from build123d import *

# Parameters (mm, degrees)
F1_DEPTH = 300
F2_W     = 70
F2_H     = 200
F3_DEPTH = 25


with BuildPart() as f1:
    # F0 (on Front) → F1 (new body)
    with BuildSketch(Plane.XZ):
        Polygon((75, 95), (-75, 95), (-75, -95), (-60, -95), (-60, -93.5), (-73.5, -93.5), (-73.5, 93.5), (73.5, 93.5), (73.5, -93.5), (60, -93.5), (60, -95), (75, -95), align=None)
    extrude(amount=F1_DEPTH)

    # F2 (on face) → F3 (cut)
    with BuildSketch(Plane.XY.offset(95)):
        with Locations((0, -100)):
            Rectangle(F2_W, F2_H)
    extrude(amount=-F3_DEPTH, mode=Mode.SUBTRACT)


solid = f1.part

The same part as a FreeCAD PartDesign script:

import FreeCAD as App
import Part
import Sketcher
from FreeCAD import Vector

doc = App.newDocument("Part")
body = doc.addObject("PartDesign::Body", "Body")

# Sketch on XZ plane
sketch1 = doc.addObject("Sketcher::SketchObject", "Sketch")
body.addObject(sketch1)
sketch1.AttachmentSupport = (doc.XZ_Plane, [""])
sketch1.MapMode = "FlatFace"
sketch1.addGeometry([
    Part.LineSegment(Vector(75, 95, 0), Vector(-75, 95, 0)),  # 0
    Part.LineSegment(Vector(-75, 95, 0), Vector(-75, -95, 0)),  # 1
    Part.LineSegment(Vector(-75, -95, 0), Vector(-60, -95, 0)),  # 2
    Part.LineSegment(Vector(-60, -95, 0), Vector(-60, -93.5, 0)),  # 3
    Part.LineSegment(Vector(-60, -93.5, 0), Vector(-73.5, -93.5, 0)),  # 4
    Part.LineSegment(Vector(-73.5, -93.5, 0), Vector(-73.5, 93.5, 0)),  # 5
    Part.LineSegment(Vector(-73.5, 93.5, 0), Vector(73.5, 93.5, 0)),  # 6
    Part.LineSegment(Vector(73.5, 93.5, 0), Vector(73.5, -93.5, 0)),  # 7
    Part.LineSegment(Vector(73.5, -93.5, 0), Vector(60, -93.5, 0)),  # 8
    Part.LineSegment(Vector(60, -93.5, 0), Vector(60, -95, 0)),  # 9
    Part.LineSegment(Vector(60, -95, 0), Vector(75, -95, 0)),  # 10
    Part.LineSegment(Vector(75, -95, 0), Vector(75, 95, 0)),  # 11
], False)
sketch1.addConstraint([
    Sketcher.Constraint("Coincident", 0, 2, 1, 1),
    Sketcher.Constraint("Coincident", 1, 2, 2, 1),
    Sketcher.Constraint("Coincident", 2, 2, 3, 1),
    Sketcher.Constraint("Coincident", 3, 2, 4, 1),
    Sketcher.Constraint("Coincident", 4, 2, 5, 1),
    Sketcher.Constraint("Coincident", 5, 2, 6, 1),
    Sketcher.Constraint("Coincident", 6, 2, 7, 1),
    Sketcher.Constraint("Coincident", 7, 2, 8, 1),
    Sketcher.Constraint("Coincident", 8, 2, 9, 1),
    Sketcher.Constraint("Coincident", 9, 2, 10, 1),
    Sketcher.Constraint("Coincident", 10, 2, 11, 1),
    Sketcher.Constraint("Coincident", 11, 2, 0, 1),
    Sketcher.Constraint("Horizontal", 0),
    Sketcher.Constraint("Vertical", 1),
    Sketcher.Constraint("Horizontal", 2),
    Sketcher.Constraint("Vertical", 3),
    Sketcher.Constraint("Horizontal", 4),
    Sketcher.Constraint("Vertical", 5),
    Sketcher.Constraint("Horizontal", 6),
    Sketcher.Constraint("Vertical", 7),
    Sketcher.Constraint("Horizontal", 8),
    Sketcher.Constraint("Vertical", 9),
    Sketcher.Constraint("Horizontal", 10),
    Sketcher.Constraint("Vertical", 11),
    Sketcher.Constraint("Symmetric", 4, 2, 6, 2, -1, 1),
    Sketcher.Constraint("Symmetric", 0, 2, 10, 2, -1, 1),
    Sketcher.Constraint("Symmetric", 3, 2, 8, 2, -2),
    Sketcher.Constraint("Horizontal", 2, 2, 9, 2),
    Sketcher.Constraint("DistanceX", 0, 2, 0, 1, 150.0),
    Sketcher.Constraint("DistanceX", 2, 1, 2, 2, 15.0),
    Sketcher.Constraint("DistanceX", 6, 1, 6, 2, 147.0),
    Sketcher.Constraint("DistanceY", 1, 2, 1, 1, 190.0),
    Sketcher.Constraint("DistanceY", 5, 1, 5, 2, 187.0),
])
pad1 = doc.addObject("PartDesign::Pad", "Pad")
body.addObject(pad1)
pad1.Profile = sketch1
pad1.Length = 300

# Sketch on XY plane
sketch2 = doc.addObject("Sketcher::SketchObject", "Sketch001")
body.addObject(sketch2)
sketch2.AttachmentSupport = (doc.XY_Plane, [""])
sketch2.MapMode = "FlatFace"
sketch2.AttachmentOffset = App.Placement(Vector(0, 0, 95), App.Rotation())
sketch2.addGeometry([
    Part.LineSegment(Vector(-35, 0, 0), Vector(-35, -200, 0)),
    Part.LineSegment(Vector(-35, -200, 0), Vector(35, -200, 0)),
    Part.LineSegment(Vector(35, -200, 0), Vector(35, 0, 0)),
    Part.LineSegment(Vector(35, 0, 0), Vector(-35, 0, 0)),
], False)
sketch2.addConstraint([
    Sketcher.Constraint("Coincident", 0, 2, 1, 1),
    Sketcher.Constraint("Coincident", 1, 2, 2, 1),
    Sketcher.Constraint("Coincident", 2, 2, 3, 1),
    Sketcher.Constraint("Coincident", 3, 2, 0, 1),
    Sketcher.Constraint("Vertical", 0),
    Sketcher.Constraint("Horizontal", 1),
    Sketcher.Constraint("Vertical", 2),
    Sketcher.Constraint("Horizontal", 3),
    Sketcher.Constraint("Symmetric", 2, 2, 3, 2, -1, 1),
    Sketcher.Constraint("DistanceX", 1, 1, 1, 2, 70.0),
    Sketcher.Constraint("DistanceY", 0, 2, 0, 1, 200.0),
])
pocket1 = doc.addObject("PartDesign::Pocket", "Pocket")
body.addObject(pocket1)
pocket1.Profile = sketch2
pocket1.Length = 25

doc.recompute()
